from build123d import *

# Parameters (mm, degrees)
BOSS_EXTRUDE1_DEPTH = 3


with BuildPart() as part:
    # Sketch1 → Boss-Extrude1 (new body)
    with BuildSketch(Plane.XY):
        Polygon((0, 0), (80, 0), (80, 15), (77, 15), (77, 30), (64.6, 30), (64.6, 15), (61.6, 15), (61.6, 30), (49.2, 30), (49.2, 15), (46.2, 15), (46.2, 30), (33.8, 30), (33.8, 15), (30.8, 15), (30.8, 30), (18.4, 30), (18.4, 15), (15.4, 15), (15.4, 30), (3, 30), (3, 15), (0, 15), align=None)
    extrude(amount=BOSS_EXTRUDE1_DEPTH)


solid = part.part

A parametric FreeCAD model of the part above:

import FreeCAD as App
import Part
import Sketcher
Q = App.Units.Quantity


def add_polygon(sketch, points):
    """Adds a closed chain of lines whose ends are joined by coincident constraints."""
    first, n = sketch.GeometryCount, len(points)
    for a, b in zip(points, points[1:] + points[:1]):
        sketch.addGeometry(Part.LineSegment(App.Vector(*a, 0), App.Vector(*b, 0)), False)
    for i in range(n):
        sketch.addConstraint(Sketcher.Constraint("Coincident", first + i, 2, first + (i + 1) % n, 1))

doc = App.newDocument("Part")
params = doc.addObject("Spreadsheet::Sheet", "Params")
for row, (alias, value) in enumerate([
    ("sketch1_width", "80 mm"),
    ("sketch1_width2", "3 mm"),
    ("sketch1_height", "15 mm"),
    ("pad1_length", "3 mm"),
], start=1):
    params.set(f"A{row}", alias)
    params.set(f"B{row}", "=" + value)
    params.setAlias(f"B{row}", alias)

body = doc.addObject("PartDesign::Body", "Body")

# Sketch on XY plane
sketch1 = body.newObject("Sketcher::SketchObject", "Sketch")
sketch1.AttachmentSupport = (doc.getObject("XY_Plane"), [""])
sketch1.MapMode = "FlatFace"
add_polygon(sketch1, [(0, 0), (80, 0), (80, 15), (77, 15), (77, 30), (64.6, 30), (64.6, 15), (61.6, 15), (61.6, 30), (49.2, 30), (49.2, 15), (46.2, 15), (46.2, 30), (33.8, 30), (33.8, 15), (30.8, 15), (30.8, 30), (18.4, 30), (18.4, 15), (15.4, 15), (15.4, 30), (3, 30), (3, 15), (0, 15)])  # lines 0-23
sketch1.addConstraint([
    Sketcher.Constraint("Horizontal", 0),
    Sketcher.Constraint("Vertical", 1),
    Sketcher.Constraint("Horizontal", 2),
    Sketcher.Constraint("Vertical", 3),
    Sketcher.Constraint("Horizontal", 4),
    Sketcher.Constraint("Vertical", 5),
    Sketcher.Constraint("Horizontal", 6),
    Sketcher.Constraint("Vertical", 7),
    Sketcher.Constraint("Horizontal", 8),
    Sketcher.Constraint("Vertical", 9),
    Sketcher.Constraint("Horizontal", 10),
    Sketcher.Constraint("Vertical", 11),
    Sketcher.Constraint("Horizontal", 12),
    Sketcher.Constraint("Vertical", 13),
    Sketcher.Constraint("Horizontal", 14),
    Sketcher.Constraint("Vertical", 15),
    Sketcher.Constraint("Horizontal", 16),
    Sketcher.Constraint("Vertical", 17),
    Sketcher.Constraint("Horizontal", 18),
    Sketcher.Constraint("Vertical", 19),
    Sketcher.Constraint("Horizontal", 20),
    Sketcher.Constraint("Vertical", 21),
    Sketcher.Constraint("Horizontal", 22),
    Sketcher.Constraint("Vertical", 23),
    Sketcher.Constraint("Coincident", 23, 2, -1, 1),
    Sketcher.Constraint("Horizontal", 2, 2, 5, 2),
    Sketcher.Constraint("Horizontal", 4, 2, 7, 2),
    Sketcher.Constraint("Horizontal", 6, 2, 9, 2),
    Sketcher.Constraint("Horizontal", 8, 2, 11, 2),
    Sketcher.Constraint("Horizontal", 10, 2, 13, 2),
    Sketcher.Constraint("Horizontal", 12, 2, 15, 2),
    Sketcher.Constraint("Horizontal", 14, 2, 17, 2),
    Sketcher.Constraint("Horizontal", 16, 2, 19, 2),
    Sketcher.Constraint("Horizontal", 18, 2, 21, 2),
    Sketcher.Constraint("Equal", 2, 6),
    Sketcher.Constraint("Equal", 4, 8),
    Sketcher.Constraint("Equal", 6, 10),
    Sketcher.Constraint("Equal", 8, 12),
    Sketcher.Constraint("Equal", 10, 14),
    Sketcher.Constraint("Equal", 12, 16),
    Sketcher.Constraint("Equal", 14, 18),
    Sketcher.Constraint("Equal", 16, 20),
    Sketcher.Constraint("Equal", 18, 22),
    Sketcher.Constraint("Equal", 1, 3),
    Sketcher.Constraint("DistanceX", 0, 1, 0, 2, Q("80 mm")),
    Sketcher.Constraint("DistanceX", 2, 2, 2, 1, Q("3 mm")),
    Sketcher.Constraint("DistanceY", 1, 1, 1, 2, Q("15 mm")),
])
sketch1.setExpression("Constraints[68]", "Params.sketch1_width")
sketch1.setExpression("Constraints[69]", "Params.sketch1_width2")
sketch1.setExpression("Constraints[70]", "Params.sketch1_height")
pad1 = body.newObject("PartDesign::Pad", "Pad")
pad1.Profile = sketch1
pad1.setExpression("Length", "Params.pad1_length")

doc.recompute()
